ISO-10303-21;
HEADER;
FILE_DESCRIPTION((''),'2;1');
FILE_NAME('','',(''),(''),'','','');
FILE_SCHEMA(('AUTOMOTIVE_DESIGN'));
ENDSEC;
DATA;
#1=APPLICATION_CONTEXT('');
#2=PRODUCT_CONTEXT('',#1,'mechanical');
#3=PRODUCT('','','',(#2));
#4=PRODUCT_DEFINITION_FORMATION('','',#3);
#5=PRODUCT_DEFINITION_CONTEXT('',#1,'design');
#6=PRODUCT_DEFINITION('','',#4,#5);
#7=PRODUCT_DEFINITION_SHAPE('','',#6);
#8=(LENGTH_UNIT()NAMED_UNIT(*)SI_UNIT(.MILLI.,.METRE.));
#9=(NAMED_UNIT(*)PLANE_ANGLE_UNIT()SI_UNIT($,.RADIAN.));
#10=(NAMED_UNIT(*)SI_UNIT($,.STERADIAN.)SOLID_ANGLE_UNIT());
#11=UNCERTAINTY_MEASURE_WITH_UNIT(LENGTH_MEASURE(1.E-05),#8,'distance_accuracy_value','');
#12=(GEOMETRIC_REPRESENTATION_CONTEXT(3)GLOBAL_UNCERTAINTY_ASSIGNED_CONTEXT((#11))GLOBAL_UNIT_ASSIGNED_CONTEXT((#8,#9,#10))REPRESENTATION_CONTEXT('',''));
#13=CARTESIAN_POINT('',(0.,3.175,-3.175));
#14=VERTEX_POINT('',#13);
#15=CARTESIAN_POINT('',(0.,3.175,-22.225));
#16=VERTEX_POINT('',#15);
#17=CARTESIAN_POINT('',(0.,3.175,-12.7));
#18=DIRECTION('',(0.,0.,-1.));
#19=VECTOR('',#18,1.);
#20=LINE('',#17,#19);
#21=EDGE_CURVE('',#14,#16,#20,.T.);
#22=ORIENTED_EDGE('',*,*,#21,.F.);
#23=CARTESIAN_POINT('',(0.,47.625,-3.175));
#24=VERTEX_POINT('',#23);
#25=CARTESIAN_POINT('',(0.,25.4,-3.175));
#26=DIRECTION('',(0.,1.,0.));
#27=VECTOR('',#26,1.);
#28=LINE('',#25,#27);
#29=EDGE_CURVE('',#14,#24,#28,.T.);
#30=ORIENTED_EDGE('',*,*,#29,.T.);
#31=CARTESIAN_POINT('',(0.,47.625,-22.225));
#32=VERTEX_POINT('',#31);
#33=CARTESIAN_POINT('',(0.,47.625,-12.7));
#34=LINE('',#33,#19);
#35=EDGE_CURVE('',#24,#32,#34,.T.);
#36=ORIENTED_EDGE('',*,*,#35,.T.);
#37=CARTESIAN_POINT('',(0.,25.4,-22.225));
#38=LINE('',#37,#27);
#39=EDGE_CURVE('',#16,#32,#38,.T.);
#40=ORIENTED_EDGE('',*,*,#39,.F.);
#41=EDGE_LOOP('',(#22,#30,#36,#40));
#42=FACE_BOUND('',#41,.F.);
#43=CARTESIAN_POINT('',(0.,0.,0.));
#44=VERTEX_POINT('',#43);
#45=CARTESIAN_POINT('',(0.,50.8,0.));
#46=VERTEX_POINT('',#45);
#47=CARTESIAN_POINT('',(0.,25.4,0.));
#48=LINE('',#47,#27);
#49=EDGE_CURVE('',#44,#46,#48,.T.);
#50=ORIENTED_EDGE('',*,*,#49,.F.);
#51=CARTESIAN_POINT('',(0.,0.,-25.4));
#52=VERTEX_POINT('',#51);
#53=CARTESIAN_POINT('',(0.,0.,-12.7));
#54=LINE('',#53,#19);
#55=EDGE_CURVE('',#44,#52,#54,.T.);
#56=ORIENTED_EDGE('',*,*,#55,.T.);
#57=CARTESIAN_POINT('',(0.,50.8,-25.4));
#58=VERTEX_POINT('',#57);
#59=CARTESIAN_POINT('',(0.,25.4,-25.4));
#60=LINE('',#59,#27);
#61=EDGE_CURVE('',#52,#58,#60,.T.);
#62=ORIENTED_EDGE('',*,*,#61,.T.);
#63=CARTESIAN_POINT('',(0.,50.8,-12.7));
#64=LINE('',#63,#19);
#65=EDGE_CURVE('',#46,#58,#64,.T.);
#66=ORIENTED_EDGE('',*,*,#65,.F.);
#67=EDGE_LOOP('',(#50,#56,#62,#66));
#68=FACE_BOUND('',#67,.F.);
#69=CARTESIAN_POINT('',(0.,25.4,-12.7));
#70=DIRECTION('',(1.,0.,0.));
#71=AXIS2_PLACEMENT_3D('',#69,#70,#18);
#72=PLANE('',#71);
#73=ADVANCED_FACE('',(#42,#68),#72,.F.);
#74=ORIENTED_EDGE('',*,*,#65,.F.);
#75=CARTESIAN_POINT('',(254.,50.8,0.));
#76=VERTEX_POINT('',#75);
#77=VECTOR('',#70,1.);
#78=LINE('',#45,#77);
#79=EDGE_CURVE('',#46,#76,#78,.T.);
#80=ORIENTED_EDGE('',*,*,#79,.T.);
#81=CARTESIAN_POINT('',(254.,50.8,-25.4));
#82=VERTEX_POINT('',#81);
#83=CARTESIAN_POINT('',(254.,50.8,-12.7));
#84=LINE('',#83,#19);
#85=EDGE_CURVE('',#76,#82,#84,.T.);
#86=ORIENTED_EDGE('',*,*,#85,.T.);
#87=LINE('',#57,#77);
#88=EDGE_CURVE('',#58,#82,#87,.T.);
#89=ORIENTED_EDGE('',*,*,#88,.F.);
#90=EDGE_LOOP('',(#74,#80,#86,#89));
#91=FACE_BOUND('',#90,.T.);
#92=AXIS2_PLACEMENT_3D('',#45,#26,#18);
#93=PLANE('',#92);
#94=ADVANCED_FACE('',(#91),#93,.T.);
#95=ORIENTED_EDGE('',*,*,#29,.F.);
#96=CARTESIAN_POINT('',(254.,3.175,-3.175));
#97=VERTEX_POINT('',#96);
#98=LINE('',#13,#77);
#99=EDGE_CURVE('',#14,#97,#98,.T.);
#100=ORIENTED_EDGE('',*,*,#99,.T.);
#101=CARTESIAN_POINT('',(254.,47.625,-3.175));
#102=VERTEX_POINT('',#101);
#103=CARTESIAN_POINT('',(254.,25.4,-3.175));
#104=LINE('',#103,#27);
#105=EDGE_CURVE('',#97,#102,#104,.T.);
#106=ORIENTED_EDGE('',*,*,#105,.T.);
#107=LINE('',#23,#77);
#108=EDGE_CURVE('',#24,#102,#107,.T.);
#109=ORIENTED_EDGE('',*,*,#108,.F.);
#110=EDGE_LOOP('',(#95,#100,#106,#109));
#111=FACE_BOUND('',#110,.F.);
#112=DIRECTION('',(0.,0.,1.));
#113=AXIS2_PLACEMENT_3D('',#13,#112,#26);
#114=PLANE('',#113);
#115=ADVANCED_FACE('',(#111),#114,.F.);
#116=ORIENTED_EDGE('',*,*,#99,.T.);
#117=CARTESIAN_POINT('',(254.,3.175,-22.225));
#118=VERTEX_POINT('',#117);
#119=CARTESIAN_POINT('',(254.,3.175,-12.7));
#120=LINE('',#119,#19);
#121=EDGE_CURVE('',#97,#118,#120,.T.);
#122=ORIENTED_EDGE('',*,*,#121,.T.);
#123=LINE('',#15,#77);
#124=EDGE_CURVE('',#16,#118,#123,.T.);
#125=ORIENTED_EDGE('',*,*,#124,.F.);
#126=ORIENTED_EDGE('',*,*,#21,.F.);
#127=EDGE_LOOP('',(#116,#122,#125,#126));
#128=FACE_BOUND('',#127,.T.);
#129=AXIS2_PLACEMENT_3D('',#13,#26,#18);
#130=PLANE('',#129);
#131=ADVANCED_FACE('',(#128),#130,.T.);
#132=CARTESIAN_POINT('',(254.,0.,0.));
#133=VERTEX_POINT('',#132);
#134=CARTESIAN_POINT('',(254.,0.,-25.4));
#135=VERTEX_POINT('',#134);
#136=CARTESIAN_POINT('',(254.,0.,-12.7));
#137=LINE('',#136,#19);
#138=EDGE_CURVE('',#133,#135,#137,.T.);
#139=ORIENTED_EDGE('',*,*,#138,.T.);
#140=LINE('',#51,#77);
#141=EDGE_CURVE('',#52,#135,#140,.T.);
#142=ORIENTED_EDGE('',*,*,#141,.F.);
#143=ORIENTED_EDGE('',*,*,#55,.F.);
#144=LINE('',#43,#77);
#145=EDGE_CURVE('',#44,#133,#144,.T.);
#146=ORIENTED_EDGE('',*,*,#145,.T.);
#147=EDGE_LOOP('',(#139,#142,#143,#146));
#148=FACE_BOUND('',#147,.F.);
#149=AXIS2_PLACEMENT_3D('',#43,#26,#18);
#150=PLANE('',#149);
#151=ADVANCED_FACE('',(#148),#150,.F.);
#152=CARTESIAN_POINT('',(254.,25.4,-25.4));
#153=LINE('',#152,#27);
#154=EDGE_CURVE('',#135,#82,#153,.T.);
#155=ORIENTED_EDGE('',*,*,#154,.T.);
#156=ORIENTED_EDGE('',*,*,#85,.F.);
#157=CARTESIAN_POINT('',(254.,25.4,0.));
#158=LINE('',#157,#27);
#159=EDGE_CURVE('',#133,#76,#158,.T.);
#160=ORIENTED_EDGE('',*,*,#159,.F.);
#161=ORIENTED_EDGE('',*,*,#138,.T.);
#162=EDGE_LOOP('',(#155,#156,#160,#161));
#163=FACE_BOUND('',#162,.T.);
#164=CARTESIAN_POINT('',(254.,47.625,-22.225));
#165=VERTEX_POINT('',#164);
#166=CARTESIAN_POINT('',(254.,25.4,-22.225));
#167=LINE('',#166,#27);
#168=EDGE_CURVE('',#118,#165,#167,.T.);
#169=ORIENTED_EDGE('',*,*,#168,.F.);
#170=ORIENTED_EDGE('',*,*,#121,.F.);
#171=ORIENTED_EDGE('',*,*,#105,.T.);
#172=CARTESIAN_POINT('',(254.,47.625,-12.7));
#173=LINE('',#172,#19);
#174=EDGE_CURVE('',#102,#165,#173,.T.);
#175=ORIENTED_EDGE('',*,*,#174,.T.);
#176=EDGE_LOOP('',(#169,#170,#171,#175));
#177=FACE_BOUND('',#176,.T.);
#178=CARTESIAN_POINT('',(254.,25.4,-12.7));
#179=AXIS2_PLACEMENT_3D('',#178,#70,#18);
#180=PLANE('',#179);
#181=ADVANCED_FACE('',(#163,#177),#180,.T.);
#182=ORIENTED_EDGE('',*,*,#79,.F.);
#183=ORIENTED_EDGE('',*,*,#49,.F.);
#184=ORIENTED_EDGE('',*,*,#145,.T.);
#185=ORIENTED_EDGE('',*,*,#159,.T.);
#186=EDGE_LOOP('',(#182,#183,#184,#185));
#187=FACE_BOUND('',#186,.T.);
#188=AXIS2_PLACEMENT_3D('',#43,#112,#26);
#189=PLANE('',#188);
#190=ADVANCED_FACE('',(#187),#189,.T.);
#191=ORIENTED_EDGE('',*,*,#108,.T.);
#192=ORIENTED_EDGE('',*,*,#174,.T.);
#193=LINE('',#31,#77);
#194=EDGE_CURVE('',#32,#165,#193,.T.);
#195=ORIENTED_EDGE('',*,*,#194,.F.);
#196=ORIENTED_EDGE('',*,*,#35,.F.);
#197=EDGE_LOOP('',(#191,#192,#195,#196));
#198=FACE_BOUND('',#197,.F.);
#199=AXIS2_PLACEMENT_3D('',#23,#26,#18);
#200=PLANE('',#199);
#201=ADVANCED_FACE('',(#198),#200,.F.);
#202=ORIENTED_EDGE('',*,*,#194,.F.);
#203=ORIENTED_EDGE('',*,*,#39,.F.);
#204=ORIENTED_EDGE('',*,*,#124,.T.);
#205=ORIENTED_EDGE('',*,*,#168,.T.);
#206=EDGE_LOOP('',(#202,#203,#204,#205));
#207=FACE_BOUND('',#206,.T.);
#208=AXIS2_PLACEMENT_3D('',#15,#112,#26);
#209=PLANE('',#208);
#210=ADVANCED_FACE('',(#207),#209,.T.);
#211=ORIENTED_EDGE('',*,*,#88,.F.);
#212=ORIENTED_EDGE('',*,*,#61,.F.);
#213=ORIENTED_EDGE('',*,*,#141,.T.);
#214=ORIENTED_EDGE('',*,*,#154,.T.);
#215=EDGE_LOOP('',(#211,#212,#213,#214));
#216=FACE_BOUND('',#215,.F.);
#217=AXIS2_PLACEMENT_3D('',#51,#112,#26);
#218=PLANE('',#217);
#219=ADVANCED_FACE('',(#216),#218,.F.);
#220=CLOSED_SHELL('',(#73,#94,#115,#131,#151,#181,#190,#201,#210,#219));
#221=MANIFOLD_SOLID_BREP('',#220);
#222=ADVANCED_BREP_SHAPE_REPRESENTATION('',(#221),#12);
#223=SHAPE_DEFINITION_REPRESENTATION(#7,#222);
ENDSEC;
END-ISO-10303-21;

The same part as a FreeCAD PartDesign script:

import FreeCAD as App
import Part
import Sketcher

V = App.Vector
Q = App.Units.Quantity

doc = App.newDocument("Part")
body = doc.addObject("PartDesign::Body", "Body")

sketch1 = body.newObject("Sketcher::SketchObject", "Sketch")
sketch1.AttachmentSupport = (doc.getObject("YZ_Plane"), [""])
sketch1.MapMode = "FlatFace"
sketch1.addGeometry(Part.LineSegment(V(51, 0, 0), V(0, 0, 0)), False)
sketch1.addGeometry(Part.LineSegment(V(0, 0, 0), V(0, -25, 0)), False)
sketch1.addGeometry(Part.LineSegment(V(0, -25, 0), V(51, -25, 0)), False)
sketch1.addGeometry(Part.LineSegment(V(51, -25, 0), V(51, 0, 0)), False)
sketch1.addGeometry(Part.LineSegment(V(3, -22, 0), V(3, -3, 0)), False)
sketch1.addGeometry(Part.LineSegment(V(3, -3, 0), V(48, -3, 0)), False)
sketch1.addGeometry(Part.LineSegment(V(48, -3, 0), V(48, -22, 0)), False)
sketch1.addGeometry(Part.LineSegment(V(48, -22, 0), V(3, -22, 0)), False)
sketch1.addConstraint(Sketcher.Constraint("Coincident", 0, 2, 1, 1))
sketch1.addConstraint(Sketcher.Constraint("Coincident", 1, 2, 2, 1))
sketch1.addConstraint(Sketcher.Constraint("Coincident", 2, 2, 3, 1))
sketch1.addConstraint(Sketcher.Constraint("Coincident", 3, 2, 0, 1))
sketch1.addConstraint(Sketcher.Constraint("Coincident", 4, 2, 5, 1))
sketch1.addConstraint(Sketcher.Constraint("Coincident", 5, 2, 6, 1))
sketch1.addConstraint(Sketcher.Constraint("Coincident", 6, 2, 7, 1))
sketch1.addConstraint(Sketcher.Constraint("Coincident", 7, 2, 4, 1))
sketch1.addConstraint(Sketcher.Constraint("Horizontal", 0))
sketch1.addConstraint(Sketcher.Constraint("Vertical", 1))
sketch1.addConstraint(Sketcher.Constraint("Horizontal", 2))
sketch1.addConstraint(Sketcher.Constraint("Vertical", 3))
sketch1.addConstraint(Sketcher.Constraint("Vertical", 4))
sketch1.addConstraint(Sketcher.Constraint("Horizontal", 5))
sketch1.addConstraint(Sketcher.Constraint("Vertical", 6))
sketch1.addConstraint(Sketcher.Constraint("Horizontal", 7))
sketch1.addConstraint(Sketcher.Constraint("Coincident", 0, 2, -1, 1))
sketch1.addConstraint(Sketcher.Constraint("DistanceX", 0, 2, 0, 1, Q("2 in")))
sketch1.addConstraint(Sketcher.Constraint("DistanceY", 1, 2, 1, 1, Q("1 in")))
sketch1.addConstraint(Sketcher.Constraint("DistanceX", 5, 1, 5, 2, Q("1.75 in")))
sketch1.addConstraint(Sketcher.Constraint("DistanceY", 4, 1, 4, 2, Q("0.75 in")))
sketch1.addConstraint(Sketcher.Constraint("DistanceX", -1, 1, 4, 2, Q("0.125 in")))
sketch1.addConstraint(Sketcher.Constraint("DistanceY", 4, 2, -1, 1, Q("0.125 in")))
pad1 = body.newObject("PartDesign::Pad", "Pad")
pad1.Profile = sketch1
pad1.Length = Q("10 in")

doc.recompute()
